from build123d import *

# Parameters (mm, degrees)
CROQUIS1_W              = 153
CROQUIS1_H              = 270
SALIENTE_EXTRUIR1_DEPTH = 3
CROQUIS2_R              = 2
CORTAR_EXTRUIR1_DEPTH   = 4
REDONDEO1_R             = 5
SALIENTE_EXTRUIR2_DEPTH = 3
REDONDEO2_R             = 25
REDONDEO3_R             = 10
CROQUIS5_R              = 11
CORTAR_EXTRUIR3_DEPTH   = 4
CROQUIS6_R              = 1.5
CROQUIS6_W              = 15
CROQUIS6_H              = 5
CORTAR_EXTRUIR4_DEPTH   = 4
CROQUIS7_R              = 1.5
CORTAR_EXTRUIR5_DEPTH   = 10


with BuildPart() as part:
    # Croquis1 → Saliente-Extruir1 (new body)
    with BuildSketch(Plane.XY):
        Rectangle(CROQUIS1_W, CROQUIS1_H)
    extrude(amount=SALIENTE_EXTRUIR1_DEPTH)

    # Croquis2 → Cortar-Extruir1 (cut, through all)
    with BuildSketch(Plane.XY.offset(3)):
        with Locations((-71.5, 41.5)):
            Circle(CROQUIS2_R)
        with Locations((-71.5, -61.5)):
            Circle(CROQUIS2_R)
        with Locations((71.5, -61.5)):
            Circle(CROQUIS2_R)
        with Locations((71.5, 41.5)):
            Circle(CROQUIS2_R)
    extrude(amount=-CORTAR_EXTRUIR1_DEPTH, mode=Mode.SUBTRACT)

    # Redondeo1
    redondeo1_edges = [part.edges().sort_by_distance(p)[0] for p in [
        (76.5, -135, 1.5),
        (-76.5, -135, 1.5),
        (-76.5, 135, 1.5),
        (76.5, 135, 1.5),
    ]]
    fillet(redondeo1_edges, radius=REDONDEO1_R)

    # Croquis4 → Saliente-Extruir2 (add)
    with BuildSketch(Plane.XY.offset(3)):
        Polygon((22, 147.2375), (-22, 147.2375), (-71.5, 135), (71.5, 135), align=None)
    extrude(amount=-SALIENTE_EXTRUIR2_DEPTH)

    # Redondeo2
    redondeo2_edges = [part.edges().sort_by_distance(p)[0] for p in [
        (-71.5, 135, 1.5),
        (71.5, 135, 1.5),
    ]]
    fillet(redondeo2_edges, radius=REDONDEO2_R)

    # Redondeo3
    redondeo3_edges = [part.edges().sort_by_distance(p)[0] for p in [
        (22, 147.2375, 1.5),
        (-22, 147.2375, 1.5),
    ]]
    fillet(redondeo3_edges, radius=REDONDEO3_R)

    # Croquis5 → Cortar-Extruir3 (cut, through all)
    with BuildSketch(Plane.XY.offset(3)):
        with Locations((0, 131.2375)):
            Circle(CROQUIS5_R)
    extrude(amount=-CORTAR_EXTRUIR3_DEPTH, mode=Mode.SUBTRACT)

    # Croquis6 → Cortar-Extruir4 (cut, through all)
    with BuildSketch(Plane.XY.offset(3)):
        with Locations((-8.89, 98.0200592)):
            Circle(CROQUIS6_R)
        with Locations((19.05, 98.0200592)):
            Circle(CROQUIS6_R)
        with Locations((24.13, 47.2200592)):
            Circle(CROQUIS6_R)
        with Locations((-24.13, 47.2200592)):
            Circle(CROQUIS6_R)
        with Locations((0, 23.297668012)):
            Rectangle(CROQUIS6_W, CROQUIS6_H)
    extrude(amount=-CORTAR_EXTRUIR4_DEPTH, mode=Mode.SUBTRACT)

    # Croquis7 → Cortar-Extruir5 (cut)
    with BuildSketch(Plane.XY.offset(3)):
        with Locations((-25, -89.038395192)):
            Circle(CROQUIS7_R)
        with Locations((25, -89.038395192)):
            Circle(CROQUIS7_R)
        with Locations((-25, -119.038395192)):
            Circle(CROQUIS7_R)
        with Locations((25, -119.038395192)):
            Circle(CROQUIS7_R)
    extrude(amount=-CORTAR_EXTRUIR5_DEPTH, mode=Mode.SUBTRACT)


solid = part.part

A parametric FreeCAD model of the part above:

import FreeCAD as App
import Part
import Sketcher
Q = App.Units.Quantity


def edges_at(feature, points):
    """Names of the edges that pass closest to the given points."""
    edges = feature.Shape.Edges
    near = lambda p: min(range(len(edges)), key=lambda i: edges[i].distToShape(Part.Vertex(*p))[0])
    return sorted({f"Edge{near(p) + 1}" for p in points})

doc = App.newDocument("Part")
body = doc.addObject("PartDesign::Body", "Body")

# Sketch on XY plane
sketch1 = body.newObject("Sketcher::SketchObject", "Sketch")
sketch1.AttachmentSupport = (doc.getObject("XY_Plane"), [""])
sketch1.MapMode = "FlatFace"
sketch1.addGeometry(Part.LineSegment(App.Vector(-76, 135, 0), App.Vector(-76, -135, 0)), False)
sketch1.addGeometry(Part.LineSegment(App.Vector(-76, -135, 0), App.Vector(76, -135, 0)), False)
sketch1.addGeometry(Part.LineSegment(App.Vector(76, -135, 0), App.Vector(76, 135, 0)), False)
sketch1.addGeometry(Part.LineSegment(App.Vector(76, 135, 0), App.Vector(-76, 135, 0)), False)
sketch1.addConstraint(Sketcher.Constraint("Coincident", 0, 2, 1, 1))
sketch1.addConstraint(Sketcher.Constraint("Coincident", 1, 2, 2, 1))
sketch1.addConstraint(Sketcher.Constraint("Coincident", 2, 2, 3, 1))
sketch1.addConstraint(Sketcher.Constraint("Coincident", 3, 2, 0, 1))
sketch1.addConstraint(Sketcher.Constraint("Vertical", 0))
sketch1.addConstraint(Sketcher.Constraint("Horizontal", 1))
sketch1.addConstraint(Sketcher.Constraint("Vertical", 2))
sketch1.addConstraint(Sketcher.Constraint("Horizontal", 3))
sketch1.addConstraint(Sketcher.Constraint("Symmetric", 0, 2, 2, 2, -1, 1))
sketch1.addConstraint(Sketcher.Constraint("DistanceX", 1, 1, 1, 2, Q("153 mm")))
sketch1.addConstraint(Sketcher.Constraint("DistanceY", 0, 2, 0, 1, Q("270 mm")))
pad1 = body.newObject("PartDesign::Pad", "Pad")
pad1.Profile = sketch1
pad1.Length = 3

# Sketch on XY plane
sketch2 = body.newObject("Sketcher::SketchObject", "Sketch001")
sketch2.AttachmentSupport = (doc.getObject("XY_Plane"), [""])
sketch2.MapMode = "FlatFace"
sketch2.AttachmentOffset = App.Placement(App.Vector(0, 0, 3), App.Rotation())
sketch2.addGeometry(Part.Circle(App.Vector(-71.5, 41.5, 0), App.Vector(0, 0, 1), 2), False)
sketch2.addGeometry(Part.Circle(App.Vector(-71.5, -61.5, 0), App.Vector(0, 0, 1), 2), False)
sketch2.addGeometry(Part.Circle(App.Vector(71.5, -61.5, 0), App.Vector(0, 0, 1), 2), False)
sketch2.addGeometry(Part.Circle(App.Vector(71.5, 41.5, 0), App.Vector(0, 0, 1), 2), False)
sketch2.addConstraint(Sketcher.Constraint("Equal", 0, 1))
sketch2.addConstraint(Sketcher.Constraint("Equal", 1, 2))
sketch2.addConstraint(Sketcher.Constraint("Equal", 2, 3))
sketch2.addConstraint(Sketcher.Constraint("Symmetric", 1, 3, 2, 3, -2))
sketch2.addConstraint(Sketcher.Constraint("Symmetric", 0, 3, 3, 3, -2))
sketch2.addConstraint(Sketcher.Constraint("Vertical", 0, 3, 1, 3))
sketch2.addConstraint(Sketcher.Constraint("Diameter", 0, Q("4 mm")))
sketch2.addConstraint(Sketcher.Constraint("DistanceY", 1, 3, 0, 3, Q("103 mm")))
sketch2.addConstraint(Sketcher.Constraint("DistanceX", 1, 3, 2, 3, Q("143 mm")))
sketch2.addConstraint(Sketcher.Constraint("DistanceY", -1, 1, 0, 3, Q("41.5 mm")))
pocket1 = body.newObject("PartDesign::Pocket", "Pocket")
pocket1.Profile = sketch2
pocket1.Type = "ThroughAll"
doc.recompute()

fillet = body.newObject("PartDesign::Fillet", "Fillet")
fillet.Base = (pocket1, edges_at(pocket1, [
    (76.5, -135, 1.5),
    (-76.5, -135, 1.5),
    (-76.5, 135, 1.5),
    (76.5, 135, 1.5),
]))
fillet.Radius = 5

# Sketch on XY plane
sketch3 = body.newObject("Sketcher::SketchObject", "Sketch002")
sketch3.AttachmentSupport = (doc.getObject("XY_Plane"), [""])
sketch3.MapMode = "FlatFace"
sketch3.AttachmentOffset = App.Placement(App.Vector(0, 0, 3), App.Rotation())
sketch3.addGeometry(Part.LineSegment(App.Vector(22, 147, 0), App.Vector(-22, 147, 0)), False)
sketch3.addGeometry(Part.LineSegment(App.Vector(-22, 147, 0), App.Vector(-72, 135, 0)), False)
sketch3.addGeometry(Part.LineSegment(App.Vector(-72, 135, 0), App.Vector(72, 135, 0)), False)
sketch3.addGeometry(Part.LineSegment(App.Vector(72, 135, 0), App.Vector(22, 147, 0)), False)
sketch3.addConstraint(Sketcher.Constraint("Coincident", 0, 2, 1, 1))
sketch3.addConstraint(Sketcher.Constraint("Coincident", 1, 2, 2, 1))
sketch3.addConstraint(Sketcher.Constraint("Coincident", 2, 2, 3, 1))
sketch3.addConstraint(Sketcher.Constraint("Coincident", 3, 2, 0, 1))
sketch3.addConstraint(Sketcher.Constraint("Horizontal", 0))
sketch3.addConstraint(Sketcher.Constraint("Horizontal", 2))
sketch3.addConstraint(Sketcher.Constraint("Equal", 1, 3))
sketch3.addConstraint(Sketcher.Constraint("DistanceX", 0, 2, 0, 1, Q("44 mm")))
sketch3.addConstraint(Sketcher.Constraint("DistanceX", 2, 1, 2, 2, Q("143 mm")))
sketch3.addConstraint(Sketcher.Constraint("DistanceX", 0, 2, -1, 1, Q("22 mm")))
sketch3.addConstraint(Sketcher.Constraint("DistanceY", -1, 1, 1, 2, Q("135 mm")))
sketch3.addConstraint(Sketcher.Constraint("DistanceY", -1, 1, 0, 2, Q("147.2375 mm")))
pad2 = body.newObject("PartDesign::Pad", "Pad001")
pad2.Profile = sketch3
pad2.Length = 3
pad2.Reversed = True
doc.recompute()

fillet2 = body.newObject("PartDesign::Fillet", "Fillet001")
fillet2.Base = (pad2, edges_at(pad2, [(-71.5, 135, 1.5), (71.5, 135, 1.5)]))
fillet2.Radius = 25
doc.recompute()

fillet3 = body.newObject("PartDesign::Fillet", "Fillet002")
fillet3.Base = (fillet2, edges_at(fillet2, [(22, 147.238, 1.5), (-22, 147.238, 1.5)]))
fillet3.Radius = 10

# Sketch on XY plane
sketch4 = body.newObject("Sketcher::SketchObject", "Sketch003")
sketch4.AttachmentSupport = (doc.getObject("XY_Plane"), [""])
sketch4.MapMode = "FlatFace"
sketch4.AttachmentOffset = App.Placement(App.Vector(0, 0, 3), App.Rotation())
sketch4.addGeometry(Part.Circle(App.Vector(0, 131, 0), App.Vector(0, 0, 1), 11), False)
sketch4.addConstraint(Sketcher.Constraint("PointOnObject", 0, 3, -2))
sketch4.addConstraint(Sketcher.Constraint("Diameter", 0, Q("22 mm")))
sketch4.addConstraint(Sketcher.Constraint("DistanceY", -1, 1, 0, 3, Q("131.2375 mm")))
pocket2 = body.newObject("PartDesign::Pocket", "Pocket001")
pocket2.Profile = sketch4
pocket2.Type = "ThroughAll"

# Sketch on XY plane
sketch5 = body.newObject("Sketcher::SketchObject", "Sketch004")
sketch5.AttachmentSupport = (doc.getObject("XY_Plane"), [""])
sketch5.MapMode = "FlatFace"
sketch5.AttachmentOffset = App.Placement(App.Vector(0, 0, 3), App.Rotation())
sketch5.addGeometry(Part.Circle(App.Vector(-8.9, 98, 0), App.Vector(0, 0, 1), 1.5), False)
sketch5.addGeometry(Part.Circle(App.Vector(19.1, 98, 0), App.Vector(0, 0, 1), 1.5), False)
sketch5.addGeometry(Part.Circle(App.Vector(24.1, 47.2, 0), App.Vector(0, 0, 1), 1.5), False)
sketch5.addGeometry(Part.Circle(App.Vector(-24.1, 47.2, 0), App.Vector(0, 0, 1), 1.5), False)
sketch5.addGeometry(Part.LineSegment(App.Vector(-7.5, 25.8, 0), App.Vector(-7.5, 20.8, 0)), False)
sketch5.addGeometry(Part.LineSegment(App.Vector(-7.5, 20.8, 0), App.Vector(7.5, 20.8, 0)), False)
sketch5.addGeometry(Part.LineSegment(App.Vector(7.5, 20.8, 0), App.Vector(7.5, 25.8, 0)), False)
sketch5.addGeometry(Part.LineSegment(App.Vector(7.5, 25.8, 0), App.Vector(-7.5, 25.8, 0)), False)
sketch5.addConstraint(Sketcher.Constraint("Coincident", 4, 2, 5, 1))
sketch5.addConstraint(Sketcher.Constraint("Coincident", 5, 2, 6, 1))
sketch5.addConstraint(Sketcher.Constraint("Coincident", 6, 2, 7, 1))
sketch5.addConstraint(Sketcher.Constraint("Coincident", 7, 2, 4, 1))
sketch5.addConstraint(Sketcher.Constraint("Vertical", 4))
sketch5.addConstraint(Sketcher.Constraint("Horizontal", 5))
sketch5.addConstraint(Sketcher.Constraint("Vertical", 6))
sketch5.addConstraint(Sketcher.Constraint("Horizontal", 7))
sketch5.addConstraint(Sketcher.Constraint("Equal", 0, 1))
sketch5.addConstraint(Sketcher.Constraint("Equal", 1, 2))
sketch5.addConstraint(Sketcher.Constraint("Equal", 2, 3))
sketch5.addConstraint(Sketcher.Constraint("Symmetric", 2, 3, 3, 3, -2))
sketch5.addConstraint(Sketcher.Constraint("Horizontal", 0, 3, 1, 3))
sketch5.addConstraint(Sketcher.Constraint("Diameter", 0, Q("3 mm")))
sketch5.addConstraint(Sketcher.Constraint("DistanceX", 5, 1, 5, 2, Q("15 mm")))
sketch5.addConstraint(Sketcher.Constraint("DistanceY", 4, 2, 4, 1, Q("5 mm")))
sketch5.addConstraint(Sketcher.Constraint("DistanceX", 4, 2, -1, 1, Q("7.5 mm")))
sketch5.addConstraint(Sketcher.Constraint("DistanceY", 2, 3, 1, 3, Q("50.8 mm")))
sketch5.addConstraint(Sketcher.Constraint("DistanceX", 0, 3, -1, 1, Q("8.89 mm")))
sketch5.addConstraint(Sketcher.Constraint("DistanceX", -1, 1, 1, 3, Q("19.05 mm")))
sketch5.addConstraint(Sketcher.Constraint("DistanceX", -1, 1, 2, 3, Q("24.13 mm")))
sketch5.addConstraint(Sketcher.Constraint("DistanceY", -1, 1, 0, 3, Q("98.020059 mm")))
sketch5.addConstraint(Sketcher.Constraint("DistanceY", -1, 1, 4, 2, Q("20.797668 mm")))
pocket3 = body.newObject("PartDesign::Pocket", "Pocket002")
pocket3.Profile = sketch5
pocket3.Type = "ThroughAll"

# Sketch on XY plane
sketch6 = body.newObject("Sketcher::SketchObject", "Sketch005")
sketch6.AttachmentSupport = (doc.getObject("XY_Plane"), [""])
sketch6.MapMode = "FlatFace"
sketch6.AttachmentOffset = App.Placement(App.Vector(0, 0, 3), App.Rotation())
sketch6.addGeometry(Part.Circle(App.Vector(-25, -89, 0), App.Vector(0, 0, 1), 1.5), False)
sketch6.addGeometry(Part.Circle(App.Vector(25, -89, 0), App.Vector(0, 0, 1), 1.5), False)
sketch6.addGeometry(Part.Circle(App.Vector(-25, -119, 0), App.Vector(0, 0, 1), 1.5), False)
sketch6.addGeometry(Part.Circle(App.Vector(25, -119, 0), App.Vector(0, 0, 1), 1.5), False)
sketch6.addConstraint(Sketcher.Constraint("Equal", 0, 1))
sketch6.addConstraint(Sketcher.Constraint("Equal", 1, 2))
sketch6.addConstraint(Sketcher.Constraint("Equal", 2, 3))
sketch6.addConstraint(Sketcher.Constraint("Symmetric", 0, 3, 1, 3, -2))
sketch6.addConstraint(Sketcher.Constraint("Symmetric", 2, 3, 3, 3, -2))
sketch6.addConstraint(Sketcher.Constraint("Vertical", 0, 3, 2, 3))
sketch6.addConstraint(Sketcher.Constraint("Diameter", 0, Q("3 mm")))
sketch6.addConstraint(Sketcher.Constraint("DistanceX", 0, 3, -1, 1, Q("25 mm")))
sketch6.addConstraint(Sketcher.Constraint("DistanceY", 2, 3, 0, 3, Q("30 mm")))
sketch6.addConstraint(Sketcher.Constraint("DistanceY", 0, 3, -1, 1, Q("89.038395 mm")))
pocket4 = body.newObject("PartDesign::Pocket", "Pocket003")
pocket4.Profile = sketch6
pocket4.Length = 10

doc.recompute()
